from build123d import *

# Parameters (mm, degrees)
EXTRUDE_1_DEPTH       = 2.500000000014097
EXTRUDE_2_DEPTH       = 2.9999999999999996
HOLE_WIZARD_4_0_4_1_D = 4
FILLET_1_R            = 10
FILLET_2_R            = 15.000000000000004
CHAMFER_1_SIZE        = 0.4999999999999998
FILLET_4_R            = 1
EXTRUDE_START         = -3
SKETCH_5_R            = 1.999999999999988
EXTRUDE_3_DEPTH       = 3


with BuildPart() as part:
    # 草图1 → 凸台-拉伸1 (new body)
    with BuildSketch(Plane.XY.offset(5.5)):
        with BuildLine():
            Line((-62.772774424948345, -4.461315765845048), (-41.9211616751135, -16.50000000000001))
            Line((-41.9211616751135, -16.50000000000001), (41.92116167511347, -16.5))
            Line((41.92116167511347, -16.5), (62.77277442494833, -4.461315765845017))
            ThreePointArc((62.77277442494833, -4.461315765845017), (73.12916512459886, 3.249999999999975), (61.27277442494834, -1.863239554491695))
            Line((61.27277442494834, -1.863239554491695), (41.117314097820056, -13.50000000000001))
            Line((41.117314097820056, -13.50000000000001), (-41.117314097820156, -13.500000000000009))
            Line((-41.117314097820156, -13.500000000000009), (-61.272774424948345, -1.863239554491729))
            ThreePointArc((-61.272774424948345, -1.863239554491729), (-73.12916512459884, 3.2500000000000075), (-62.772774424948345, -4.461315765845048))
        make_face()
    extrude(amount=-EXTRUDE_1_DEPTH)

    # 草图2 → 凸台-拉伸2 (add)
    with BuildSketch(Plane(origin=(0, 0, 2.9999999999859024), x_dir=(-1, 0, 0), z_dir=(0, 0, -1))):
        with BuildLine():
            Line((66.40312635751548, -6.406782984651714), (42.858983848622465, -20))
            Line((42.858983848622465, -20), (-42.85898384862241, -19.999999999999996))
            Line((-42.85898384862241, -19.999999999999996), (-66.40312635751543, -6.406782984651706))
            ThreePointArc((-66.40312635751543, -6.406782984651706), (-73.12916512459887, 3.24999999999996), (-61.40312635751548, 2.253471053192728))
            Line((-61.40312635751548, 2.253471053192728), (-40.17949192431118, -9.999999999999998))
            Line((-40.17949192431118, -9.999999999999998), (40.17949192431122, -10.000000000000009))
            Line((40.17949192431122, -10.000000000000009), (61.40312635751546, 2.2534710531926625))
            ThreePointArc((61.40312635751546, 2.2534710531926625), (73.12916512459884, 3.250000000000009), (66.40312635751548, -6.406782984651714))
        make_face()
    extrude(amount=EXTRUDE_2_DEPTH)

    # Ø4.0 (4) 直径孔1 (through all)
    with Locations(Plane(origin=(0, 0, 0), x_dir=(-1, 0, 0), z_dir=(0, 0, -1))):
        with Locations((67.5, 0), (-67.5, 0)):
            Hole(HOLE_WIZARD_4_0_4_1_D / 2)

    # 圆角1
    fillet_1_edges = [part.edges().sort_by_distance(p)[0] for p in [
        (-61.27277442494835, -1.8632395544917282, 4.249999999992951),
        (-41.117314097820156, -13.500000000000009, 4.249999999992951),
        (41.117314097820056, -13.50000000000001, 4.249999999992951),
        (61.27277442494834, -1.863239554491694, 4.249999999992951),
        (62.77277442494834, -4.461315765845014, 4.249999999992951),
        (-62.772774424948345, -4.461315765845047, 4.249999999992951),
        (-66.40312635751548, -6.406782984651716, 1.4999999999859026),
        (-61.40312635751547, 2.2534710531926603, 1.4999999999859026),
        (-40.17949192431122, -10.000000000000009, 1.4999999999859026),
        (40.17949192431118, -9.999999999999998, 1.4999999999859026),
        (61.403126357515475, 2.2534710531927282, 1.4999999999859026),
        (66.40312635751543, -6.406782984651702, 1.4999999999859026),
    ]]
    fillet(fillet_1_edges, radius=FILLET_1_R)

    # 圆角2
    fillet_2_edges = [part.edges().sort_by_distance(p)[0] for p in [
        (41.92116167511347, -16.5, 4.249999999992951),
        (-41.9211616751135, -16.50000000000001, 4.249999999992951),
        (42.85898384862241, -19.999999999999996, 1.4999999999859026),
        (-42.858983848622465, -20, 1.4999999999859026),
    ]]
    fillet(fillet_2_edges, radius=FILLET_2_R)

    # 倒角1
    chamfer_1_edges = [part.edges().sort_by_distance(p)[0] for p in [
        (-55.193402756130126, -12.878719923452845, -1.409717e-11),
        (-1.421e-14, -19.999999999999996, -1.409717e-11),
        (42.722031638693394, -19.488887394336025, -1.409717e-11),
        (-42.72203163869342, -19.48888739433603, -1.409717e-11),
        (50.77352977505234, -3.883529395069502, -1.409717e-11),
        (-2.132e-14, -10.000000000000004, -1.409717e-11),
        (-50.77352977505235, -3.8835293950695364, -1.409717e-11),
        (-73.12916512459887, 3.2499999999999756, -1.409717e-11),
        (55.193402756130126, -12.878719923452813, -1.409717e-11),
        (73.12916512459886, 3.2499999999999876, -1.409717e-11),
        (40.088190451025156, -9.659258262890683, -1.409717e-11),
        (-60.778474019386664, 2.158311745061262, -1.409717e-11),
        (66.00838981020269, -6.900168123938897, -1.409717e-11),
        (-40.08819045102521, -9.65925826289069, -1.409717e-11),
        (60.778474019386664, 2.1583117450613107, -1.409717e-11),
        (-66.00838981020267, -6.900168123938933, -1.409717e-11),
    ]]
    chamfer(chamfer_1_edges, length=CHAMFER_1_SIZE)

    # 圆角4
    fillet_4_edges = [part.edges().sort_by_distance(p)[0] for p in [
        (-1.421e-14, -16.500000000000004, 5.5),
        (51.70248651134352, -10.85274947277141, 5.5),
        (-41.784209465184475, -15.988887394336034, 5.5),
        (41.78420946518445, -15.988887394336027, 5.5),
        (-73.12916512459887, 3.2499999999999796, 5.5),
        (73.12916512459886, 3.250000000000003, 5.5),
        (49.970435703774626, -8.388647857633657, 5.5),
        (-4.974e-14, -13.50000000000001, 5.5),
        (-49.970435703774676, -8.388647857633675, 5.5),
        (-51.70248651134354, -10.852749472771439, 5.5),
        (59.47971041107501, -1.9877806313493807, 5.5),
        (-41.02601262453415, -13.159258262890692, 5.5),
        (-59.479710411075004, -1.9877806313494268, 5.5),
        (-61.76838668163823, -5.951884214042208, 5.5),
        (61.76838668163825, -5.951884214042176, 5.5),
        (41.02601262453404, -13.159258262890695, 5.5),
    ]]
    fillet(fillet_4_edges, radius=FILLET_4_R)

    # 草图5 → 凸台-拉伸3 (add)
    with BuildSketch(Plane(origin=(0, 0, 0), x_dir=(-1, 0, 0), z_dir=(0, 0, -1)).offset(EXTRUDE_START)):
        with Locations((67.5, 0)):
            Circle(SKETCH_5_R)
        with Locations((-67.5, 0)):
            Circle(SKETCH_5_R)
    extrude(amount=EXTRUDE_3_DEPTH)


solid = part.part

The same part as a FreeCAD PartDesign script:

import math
import FreeCAD as App
import Part
import Sketcher

V = App.Vector
Q = App.Units.Quantity


def edges_at(feature, points):
    """Names of the edges that pass closest to the given points."""
    edges = feature.Shape.Edges
    near = lambda p: min(range(len(edges)), key=lambda i: edges[i].distToShape(Part.Vertex(*p))[0])
    return sorted({f"Edge{near(p) + 1}" for p in points})

doc = App.newDocument("Part")
params = doc.addObject("Spreadsheet::Sheet", "Params")
for row, (alias, value) in enumerate([
    ("sketch1_radius", "6.5 mm"),
    ("pad1_length", "2.5 mm"),
    ("sketch2_radius", "6.5 mm"),
    ("pad2_length", "3 mm"),
    ("sketch3_diameter", "4 mm"),
    ("hole_diameter", "4 mm"),
    ("fillet_radius", "10 mm"),
    ("fillet2_radius", "15 mm"),
    ("chamfer_size", "0.5 mm"),
    ("fillet3_radius", "1 mm"),
    ("sketch4_diameter", "4 mm"),
    ("pad3_length", "3 mm"),
], start=1):
    params.set(f"A{row}", alias)
    params.set(f"B{row}", "=" + value)
    params.setAlias(f"B{row}", alias)

body = doc.addObject("PartDesign::Body", "Body")

sketch1 = doc.addObject("Sketcher::SketchObject", "Sketch")
body.addObject(sketch1)
sketch1.AttachmentSupport = (doc.XY_Plane, [""])
sketch1.MapMode = "FlatFace"
sketch1.AttachmentOffset = App.Placement(V(0, 0, 5.5), App.Rotation())
sketch1.addGeometry([
    Part.LineSegment(V(-62.8, -4.5, 0), V(-41.9, -16.5, 0)),
    Part.LineSegment(V(-41.9, -16.5, 0), V(41.9, -16.5, 0)),
    Part.LineSegment(V(41.9, -16.5, 0), V(62.8, -4.5, 0)),
    Part.ArcOfCircle(Part.Circle(V(67.5, 0, 0), V(0, 0, 1), 6.5), math.radians(-137), math.radians(197)),
    Part.LineSegment(V(61.3, -1.9, 0), V(41.1, -13.5, 0)),
    Part.LineSegment(V(41.1, -13.5, 0), V(-41.1, -13.5, 0)),
    Part.LineSegment(V(-41.1, -13.5, 0), V(-61.3, -1.9, 0)),
    Part.ArcOfCircle(Part.Circle(V(-67.5, 0, 0), V(0, 0, 1), 6.5), math.radians(-17), math.radians(317)),
], False)
sketch1.addConstraint([
    Sketcher.Constraint("Coincident", 0, 2, 1, 1),
    Sketcher.Constraint("Coincident", 1, 2, 2, 1),
    Sketcher.Constraint("Coincident", 2, 2, 3, 1),
    Sketcher.Constraint("Coincident", 3, 2, 4, 1),
    Sketcher.Constraint("Coincident", 4, 2, 5, 1),
    Sketcher.Constraint("Coincident", 5, 2, 6, 1),
    Sketcher.Constraint("Coincident", 6, 2, 7, 1),
    Sketcher.Constraint("Coincident", 7, 2, 0, 1),
    Sketcher.Constraint("Horizontal", 1),
    Sketcher.Constraint("Horizontal", 5),
    Sketcher.Constraint("Equal", 3, 7),
    Sketcher.Constraint("Symmetric", 3, 3, 7, 3, -1, 1),
    Sketcher.Constraint("Symmetric", 3, 2, 6, 2, -2),
    Sketcher.Constraint("Parallel", 2, 4),
    Sketcher.Constraint("Parallel", 0, 6),
    Sketcher.Constraint("Horizontal", 2, 2, 7, 2),
    Sketcher.Constraint("Equal", 0, 2),
    Sketcher.Constraint("Radius", 3, Q("6.5 mm")),
    Sketcher.Constraint("Angle", 0, Q("-30 deg")),
    Sketcher.Constraint("DistanceX", 7, 3, 3, 3, Q("135 mm")),
    Sketcher.Constraint("DistanceY", 1, 2, 4, 2, Q("3 mm")),
    Sketcher.Constraint("DistanceY", 0, 2, -1, 1, Q("16.5 mm")),
    Sketcher.Constraint("DistanceX", 3, 2, 2, 2, Q("1.5 mm")),
    Sketcher.Constraint("DistanceX", 5, 2, 5, 1, Q("82.234628 mm")),
])
sketch1.setExpression("Constraints[17]", "Params.sketch1_radius")
pad1 = doc.addObject("PartDesign::Pad", "Pad")
body.addObject(pad1)
pad1.Profile = sketch1
pad1.setExpression("Length", "Params.pad1_length")
pad1.Reversed = True

sketch2 = doc.addObject("Sketcher::SketchObject", "Sketch001")
body.addObject(sketch2)
sketch2.AttachmentSupport = (doc.XY_Plane, [""])
sketch2.MapMode = "FlatFace"
sketch2.AttachmentOffset = App.Placement(V(0, 0, 3), App.Rotation())
sketch2.addGeometry([
    Part.LineSegment(V(-43, -20, 0), V(-66, -6, 0)),
    Part.ArcOfCircle(Part.Circle(V(-68, 0, 0), V(0, 0, 1), 6), math.radians(20), math.radians(280)),
    Part.LineSegment(V(-61, 2, 0), V(-40, -10, 0)),
    Part.LineSegment(V(-40, -10, 0), V(40, -10, 0)),
    Part.LineSegment(V(40, -10, 0), V(61, 2, 0)),
    Part.ArcOfCircle(Part.Circle(V(68, 0, 0), V(0, 0, 1), 6), math.radians(-100), math.radians(160)),
    Part.LineSegment(V(66, -6, 0), V(43, -20, 0)),
    Part.LineSegment(V(43, -20, 0), V(-43, -20, 0)),
], False)
sketch2.addConstraint([
    Sketcher.Constraint("Coincident", 0, 2, 1, 2),
    Sketcher.Constraint("Coincident", 1, 1, 2, 1),
    Sketcher.Constraint("Coincident", 2, 2, 3, 1),
    Sketcher.Constraint("Coincident", 3, 2, 4, 1),
    Sketcher.Constraint("Coincident", 4, 2, 5, 2),
    Sketcher.Constraint("Coincident", 5, 1, 6, 1),
    Sketcher.Constraint("Coincident", 6, 2, 7, 1),
    Sketcher.Constraint("Coincident", 7, 2, 0, 1),
    Sketcher.Constraint("Horizontal", 3),
    Sketcher.Constraint("Horizontal", 7),
    Sketcher.Constraint("Equal", 1, 5),
    Sketcher.Constraint("Symmetric", 1, 3, 5, 3, -1, 1),
    Sketcher.Constraint("Symmetric", 1, 1, 4, 2, -2),
    Sketcher.Constraint("Parallel", 0, 2),
    Sketcher.Constraint("Parallel", 4, 6),
    Sketcher.Constraint("Horizontal", 0, 2, 5, 1),
    Sketcher.Constraint("Equal", 2, 4),
    Sketcher.Constraint("Radius", 1, Q("6.5 mm")),
    Sketcher.Constraint("Angle", 0, Q("150 deg")),
    Sketcher.Constraint("DistanceY", 2, 2, -1, 1, Q("10 mm")),
    Sketcher.Constraint("DistanceY", 6, 2, -1, 1, Q("20 mm")),
    Sketcher.Constraint("DistanceX", 1, 3, 5, 3, Q("135 mm")),
    Sketcher.Constraint("DistanceX", 0, 2, 1, 1, Q("5 mm")),
    Sketcher.Constraint("DistanceX", 3, 1, 3, 2, Q("80.358984 mm")),
])
sketch2.setExpression("Constraints[17]", "Params.sketch2_radius")
pad2 = doc.addObject("PartDesign::Pad", "Pad001")
body.addObject(pad2)
pad2.Profile = sketch2
pad2.setExpression("Length", "Params.pad2_length")
pad2.Reversed = True

sketch3 = doc.addObject("Sketcher::SketchObject", "Sketch002")
body.addObject(sketch3)
sketch3.AttachmentSupport = (doc.XY_Plane, [""])
sketch3.MapMode = "FlatFace"
sketch3.addGeometry([
    Part.Circle(V(-67.5, 0, 0), V(0, 0, 1), 2),
    Part.Circle(V(67.5, 0, 0), V(0, 0, 1), 2),
], False)
sketch3.addConstraint([
    Sketcher.Constraint("Equal", 0, 1),
    Sketcher.Constraint("Symmetric", 0, 3, 1, 3, -1, 1),
    Sketcher.Constraint("PointOnObject", 0, 3, -1),
    Sketcher.Constraint("Diameter", 0, Q("4 mm")),
    Sketcher.Constraint("DistanceX", 0, 3, 1, 3, Q("135 mm")),
])
sketch3.setExpression("Constraints[3]", "Params.sketch3_diameter")
doc.recompute()
hole = doc.addObject("PartDesign::Hole", "Hole")
body.addObject(hole)
hole.Profile = sketch3
hole.ThreadType = "None"
hole.setExpression("Diameter", "Params.hole_diameter")
hole.DepthType = "ThroughAll"
hole.Reversed = True
doc.recompute()

fillet = doc.addObject("PartDesign::Fillet", "Fillet")
body.addObject(fillet)
fillet.Base = (hole, edges_at(hole, [
    (-61.273, -1.863, 4.25),
    (-41.117, -13.5, 4.25),
    (41.117, -13.5, 4.25),
    (61.273, -1.863, 4.25),
    (62.773, -4.461, 4.25),
    (-62.773, -4.461, 4.25),
    (-66.403, -6.407, 1.5),
    (-61.403, 2.253, 1.5),
    (-40.179, -10, 1.5),
    (40.179, -10, 1.5),
    (61.403, 2.253, 1.5),
    (66.403, -6.407, 1.5),
]))
fillet.setExpression("Radius", "Params.fillet_radius")
doc.recompute()

fillet2 = doc.addObject("PartDesign::Fillet", "Fillet001")
body.addObject(fillet2)
fillet2.Base = (fillet, edges_at(fillet, [
    (41.921, -16.5, 4.25),
    (-41.921, -16.5, 4.25),
    (42.859, -20, 1.5),
    (-42.859, -20, 1.5),
]))
fillet2.setExpression("Radius", "Params.fillet2_radius")
doc.recompute()

chamfer = doc.addObject("PartDesign::Chamfer", "Chamfer")
body.addObject(chamfer)
chamfer.Base = (fillet2, edges_at(fillet2, [
    (-55.193, -12.879, 0),
    (0, -20, 0),
    (42.722, -19.489, 0),
    (-42.722, -19.489, 0),
    (50.774, -3.884, 0),
    (0, -10, 0),
    (-50.774, -3.884, 0),
    (-73.129, 3.25, 0),
    (55.193, -12.879, 0),
    (73.129, 3.25, 0),
    (40.088, -9.659, 0),
    (-60.778, 2.158, 0),
    (66.008, -6.9, 0),
    (-40.088, -9.659, 0),
    (60.778, 2.158, 0),
    (-66.008, -6.9, 0),
]))
chamfer.setExpression("Size", "Params.chamfer_size")
doc.recompute()

fillet3 = doc.addObject("PartDesign::Fillet", "Fillet002")
body.addObject(fillet3)
fillet3.Base = (chamfer, edges_at(chamfer, [
    (0, -16.5, 5.5),
    (51.702, -10.853, 5.5),
    (-41.784, -15.989, 5.5),
    (41.784, -15.989, 5.5),
    (-73.129, 3.25, 5.5),
    (73.129, 3.25, 5.5),
    (49.97, -8.389, 5.5),
    (0, -13.5, 5.5),
    (-49.97, -8.389, 5.5),
    (-51.702, -10.853, 5.5),
    (59.48, -1.988, 5.5),
    (-41.026, -13.159, 5.5),
    (-59.48, -1.988, 5.5),
    (-61.768, -5.952, 5.5),
    (61.768, -5.952, 5.5),
    (41.026, -13.159, 5.5),
]))
fillet3.setExpression("Radius", "Params.fillet3_radius")

sketch4 = doc.addObject("Sketcher::SketchObject", "Sketch003")
body.addObject(sketch4)
sketch4.AttachmentSupport = (doc.XY_Plane, [""])
sketch4.MapMode = "FlatFace"
sketch4.AttachmentOffset = App.Placement(V(0, 0, 3), App.Rotation())
sketch4.addGeometry([
    Part.Circle(V(-67.5, 0, 0), V(0, 0, 1), 2),
    Part.Circle(V(67.5, 0, 0), V(0, 0, 1), 2),
], False)
sketch4.addConstraint([
    Sketcher.Constraint("Equal", 0, 1),
    Sketcher.Constraint("Symmetric", 0, 3, 1, 3, -1, 1),
    Sketcher.Constraint("PointOnObject", 0, 3, -1),
    Sketcher.Constraint("Diameter", 0, Q("4 mm")),
    Sketcher.Constraint("DistanceX", 0, 3, 1, 3, Q("135 mm")),
])
sketch4.setExpression("Constraints[3]", "Params.sketch4_diameter")
pad3 = doc.addObject("PartDesign::Pad", "Pad002")
body.addObject(pad3)
pad3.Profile = sketch4
pad3.setExpression("Length", "Params.pad3_length")
pad3.Reversed = True

doc.recompute()
